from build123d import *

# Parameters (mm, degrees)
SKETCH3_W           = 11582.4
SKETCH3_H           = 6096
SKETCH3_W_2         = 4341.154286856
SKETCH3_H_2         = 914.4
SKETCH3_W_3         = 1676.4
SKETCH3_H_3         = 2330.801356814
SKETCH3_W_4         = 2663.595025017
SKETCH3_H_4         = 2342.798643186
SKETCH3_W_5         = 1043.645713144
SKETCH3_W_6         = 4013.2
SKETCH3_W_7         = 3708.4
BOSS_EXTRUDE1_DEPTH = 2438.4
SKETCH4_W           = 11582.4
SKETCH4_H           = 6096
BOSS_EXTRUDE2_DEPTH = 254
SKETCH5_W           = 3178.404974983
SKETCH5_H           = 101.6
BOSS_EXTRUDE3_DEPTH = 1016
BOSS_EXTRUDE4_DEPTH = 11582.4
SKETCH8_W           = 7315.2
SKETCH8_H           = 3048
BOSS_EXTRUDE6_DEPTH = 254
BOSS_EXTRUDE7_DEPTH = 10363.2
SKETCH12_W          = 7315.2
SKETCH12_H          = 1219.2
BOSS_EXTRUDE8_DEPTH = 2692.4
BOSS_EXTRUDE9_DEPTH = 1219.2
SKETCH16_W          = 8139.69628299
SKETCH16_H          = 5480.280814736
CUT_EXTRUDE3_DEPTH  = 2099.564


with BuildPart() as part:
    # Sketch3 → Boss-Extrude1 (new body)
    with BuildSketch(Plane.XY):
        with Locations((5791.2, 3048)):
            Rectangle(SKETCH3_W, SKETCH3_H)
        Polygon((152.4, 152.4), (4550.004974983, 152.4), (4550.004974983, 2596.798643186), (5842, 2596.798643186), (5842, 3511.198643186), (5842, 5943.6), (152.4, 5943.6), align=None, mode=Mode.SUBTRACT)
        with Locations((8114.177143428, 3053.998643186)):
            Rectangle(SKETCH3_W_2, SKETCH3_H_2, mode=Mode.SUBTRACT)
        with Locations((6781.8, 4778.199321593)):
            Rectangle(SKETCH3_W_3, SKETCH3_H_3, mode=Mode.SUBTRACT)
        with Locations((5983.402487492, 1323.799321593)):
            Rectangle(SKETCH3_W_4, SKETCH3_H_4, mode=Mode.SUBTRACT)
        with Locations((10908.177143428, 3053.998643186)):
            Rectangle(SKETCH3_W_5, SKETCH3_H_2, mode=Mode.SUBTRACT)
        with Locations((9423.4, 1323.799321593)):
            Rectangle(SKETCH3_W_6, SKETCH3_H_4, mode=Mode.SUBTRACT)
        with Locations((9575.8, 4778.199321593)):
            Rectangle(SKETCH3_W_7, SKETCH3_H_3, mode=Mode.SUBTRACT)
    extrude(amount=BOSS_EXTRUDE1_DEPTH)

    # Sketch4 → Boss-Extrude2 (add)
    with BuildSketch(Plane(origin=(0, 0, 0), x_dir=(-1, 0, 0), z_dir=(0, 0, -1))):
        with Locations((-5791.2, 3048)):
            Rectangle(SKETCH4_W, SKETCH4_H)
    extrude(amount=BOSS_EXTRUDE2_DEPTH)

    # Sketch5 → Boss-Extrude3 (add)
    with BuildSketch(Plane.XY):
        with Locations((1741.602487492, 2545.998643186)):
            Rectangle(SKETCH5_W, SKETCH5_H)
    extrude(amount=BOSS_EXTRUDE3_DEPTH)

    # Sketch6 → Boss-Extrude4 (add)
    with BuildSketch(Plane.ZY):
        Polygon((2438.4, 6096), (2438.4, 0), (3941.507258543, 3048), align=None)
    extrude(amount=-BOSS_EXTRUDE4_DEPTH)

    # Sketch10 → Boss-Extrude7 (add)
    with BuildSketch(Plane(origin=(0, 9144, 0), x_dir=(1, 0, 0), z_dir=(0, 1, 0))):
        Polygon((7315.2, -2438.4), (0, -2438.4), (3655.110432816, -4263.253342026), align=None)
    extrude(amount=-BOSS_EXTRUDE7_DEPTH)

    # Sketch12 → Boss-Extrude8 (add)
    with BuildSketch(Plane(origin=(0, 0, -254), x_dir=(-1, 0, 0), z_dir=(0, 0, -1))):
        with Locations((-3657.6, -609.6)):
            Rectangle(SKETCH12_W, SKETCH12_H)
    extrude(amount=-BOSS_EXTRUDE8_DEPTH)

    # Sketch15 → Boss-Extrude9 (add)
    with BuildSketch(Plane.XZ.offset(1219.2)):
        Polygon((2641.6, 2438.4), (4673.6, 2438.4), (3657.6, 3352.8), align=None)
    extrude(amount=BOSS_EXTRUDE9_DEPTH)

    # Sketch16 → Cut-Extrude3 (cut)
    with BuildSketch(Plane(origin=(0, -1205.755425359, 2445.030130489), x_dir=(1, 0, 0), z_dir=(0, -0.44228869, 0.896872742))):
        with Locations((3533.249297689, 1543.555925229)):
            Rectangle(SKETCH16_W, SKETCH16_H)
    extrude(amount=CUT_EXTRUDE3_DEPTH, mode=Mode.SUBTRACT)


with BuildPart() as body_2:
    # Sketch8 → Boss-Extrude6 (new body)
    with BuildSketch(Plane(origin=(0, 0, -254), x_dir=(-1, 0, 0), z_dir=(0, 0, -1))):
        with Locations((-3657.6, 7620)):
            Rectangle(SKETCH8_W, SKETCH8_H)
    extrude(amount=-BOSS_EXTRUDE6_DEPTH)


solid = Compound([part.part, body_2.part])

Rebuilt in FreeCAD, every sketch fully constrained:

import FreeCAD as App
import Part
import Sketcher

V = App.Vector
Q = App.Units.Quantity

doc = App.newDocument("Part")
body = doc.addObject("PartDesign::Body", "Body")

sketch1 = doc.addObject("Sketcher::SketchObject", "Sketch")
body.addObject(sketch1)
sketch1.AttachmentSupport = (doc.XY_Plane, [""])
sketch1.MapMode = "FlatFace"
sketch1.addGeometry(Part.LineSegment(V(0, 6096, 0), V(0, 0, 0)), False)
sketch1.addGeometry(Part.LineSegment(V(0, 0, 0), V(11582.4, 0, 0)), False)
sketch1.addGeometry(Part.LineSegment(V(11582.4, 0, 0), V(11582.4, 6096, 0)), False)
sketch1.addGeometry(Part.LineSegment(V(11582.4, 6096, 0), V(0, 6096, 0)), False)
sketch1.addGeometry(Part.LineSegment(V(7315.2, 152.4, 0), V(4651.604975, 152.4, 0)), False)
sketch1.addGeometry(Part.LineSegment(V(4651.604975, 152.4, 0), V(4651.604975, 2495.198643, 0)), False)
sketch1.addGeometry(Part.LineSegment(V(4651.604975, 2495.198643, 0), V(7315.2, 2495.198643, 0)), False)
sketch1.addGeometry(Part.LineSegment(V(7315.2, 2495.198643, 0), V(7315.2, 152.4, 0)), False)
sketch1.addGeometry(Part.LineSegment(V(11430, 152.4, 0), V(7416.8, 152.4, 0)), False)
sketch1.addGeometry(Part.LineSegment(V(7416.8, 152.4, 0), V(7416.8, 2495.198643, 0)), False)
sketch1.addGeometry(Part.LineSegment(V(7416.8, 2495.198643, 0), V(11430, 2495.198643, 0)), False)
sketch1.addGeometry(Part.LineSegment(V(11430, 2495.198643, 0), V(11430, 152.4, 0)), False)
sketch1.addGeometry(Part.LineSegment(V(4550.004975, 152.4, 0), V(152.4, 152.4, 0)), False)
sketch1.addGeometry(Part.LineSegment(V(152.4, 152.4, 0), V(152.4, 5943.6, 0)), False)
sketch1.addGeometry(Part.LineSegment(V(152.4, 5943.6, 0), V(5842, 5943.6, 0)), False)
sketch1.addGeometry(Part.LineSegment(V(5842, 5943.6, 0), V(5842, 2596.798643, 0)), False)
sketch1.addGeometry(Part.LineSegment(V(5842, 2596.798643, 0), V(4550.004975, 2596.798643, 0)), False)
sketch1.addGeometry(Part.LineSegment(V(4550.004975, 2596.798643, 0), V(4550.004975, 152.4, 0)), False)
sketch1.addGeometry(Part.LineSegment(V(10284.754287, 2596.798643, 0), V(5943.6, 2596.798643, 0)), False)
sketch1.addGeometry(Part.LineSegment(V(5943.6, 2596.798643, 0), V(5943.6, 3511.198643, 0)), False)
sketch1.addGeometry(Part.LineSegment(V(5943.6, 3511.198643, 0), V(10284.754287, 3511.198643, 0)), False)
sketch1.addGeometry(Part.LineSegment(V(10284.754287, 3511.198643, 0), V(10284.754287, 2596.798643, 0)), False)
sketch1.addGeometry(Part.LineSegment(V(11430, 2596.798643, 0), V(10386.354287, 2596.798643, 0)), False)
sketch1.addGeometry(Part.LineSegment(V(10386.354287, 2596.798643, 0), V(10386.354287, 3511.198643, 0)), False)
sketch1.addGeometry(Part.LineSegment(V(10386.354287, 3511.198643, 0), V(11430, 3511.198643, 0)), False)
sketch1.addGeometry(Part.LineSegment(V(11430, 3511.198643, 0), V(11430, 2596.798643, 0)), False)
sketch1.addGeometry(Part.LineSegment(V(7620, 3612.798643, 0), V(5943.6, 3612.798643, 0)), False)
sketch1.addGeometry(Part.LineSegment(V(5943.6, 3612.798643, 0), V(5943.6, 5943.6, 0)), False)
sketch1.addGeometry(Part.LineSegment(V(5943.6, 5943.6, 0), V(7620, 5943.6, 0)), False)
sketch1.addGeometry(Part.LineSegment(V(7620, 5943.6, 0), V(7620, 3612.798643, 0)), False)
sketch1.addGeometry(Part.LineSegment(V(11430, 3612.798643, 0), V(7721.6, 3612.798643, 0)), False)
sketch1.addGeometry(Part.LineSegment(V(7721.6, 3612.798643, 0), V(7721.6, 5943.6, 0)), False)
sketch1.addGeometry(Part.LineSegment(V(7721.6, 5943.6, 0), V(11430, 5943.6, 0)), False)
sketch1.addGeometry(Part.LineSegment(V(11430, 5943.6, 0), V(11430, 3612.798643, 0)), False)
sketch1.addConstraint(Sketcher.Constraint("Coincident", 0, 2, 1, 1))
sketch1.addConstraint(Sketcher.Constraint("Coincident", 1, 2, 2, 1))
sketch1.addConstraint(Sketcher.Constraint("Coincident", 2, 2, 3, 1))
sketch1.addConstraint(Sketcher.Constraint("Coincident", 3, 2, 0, 1))
sketch1.addConstraint(Sketcher.Constraint("Coincident", 4, 2, 5, 1))
sketch1.addConstraint(Sketcher.Constraint("Coincident", 5, 2, 6, 1))
sketch1.addConstraint(Sketcher.Constraint("Coincident", 6, 2, 7, 1))
sketch1.addConstraint(Sketcher.Constraint("Coincident", 7, 2, 4, 1))
sketch1.addConstraint(Sketcher.Constraint("Coincident", 8, 2, 9, 1))
sketch1.addConstraint(Sketcher.Constraint("Coincident", 9, 2, 10, 1))
sketch1.addConstraint(Sketcher.Constraint("Coincident", 10, 2, 11, 1))
sketch1.addConstraint(Sketcher.Constraint("Coincident", 11, 2, 8, 1))
sketch1.addConstraint(Sketcher.Constraint("Coincident", 12, 2, 13, 1))
sketch1.addConstraint(Sketcher.Constraint("Coincident", 13, 2, 14, 1))
sketch1.addConstraint(Sketcher.Constraint("Coincident", 14, 2, 15, 1))
sketch1.addConstraint(Sketcher.Constraint("Coincident", 15, 2, 16, 1))
sketch1.addConstraint(Sketcher.Constraint("Coincident", 16, 2, 17, 1))
sketch1.addConstraint(Sketcher.Constraint("Coincident", 17, 2, 12, 1))
sketch1.addConstraint(Sketcher.Constraint("Coincident", 18, 2, 19, 1))
sketch1.addConstraint(Sketcher.Constraint("Coincident", 19, 2, 20, 1))
sketch1.addConstraint(Sketcher.Constraint("Coincident", 20, 2, 21, 1))
sketch1.addConstraint(Sketcher.Constraint("Coincident", 21, 2, 18, 1))
sketch1.addConstraint(Sketcher.Constraint("Coincident", 22, 2, 23, 1))
sketch1.addConstraint(Sketcher.Constraint("Coincident", 23, 2, 24, 1))
sketch1.addConstraint(Sketcher.Constraint("Coincident", 24, 2, 25, 1))
sketch1.addConstraint(Sketcher.Constraint("Coincident", 25, 2, 22, 1))
sketch1.addConstraint(Sketcher.Constraint("Coincident", 26, 2, 27, 1))
sketch1.addConstraint(Sketcher.Constraint("Coincident", 27, 2, 28, 1))
sketch1.addConstraint(Sketcher.Constraint("Coincident", 28, 2, 29, 1))
sketch1.addConstraint(Sketcher.Constraint("Coincident", 29, 2, 26, 1))
sketch1.addConstraint(Sketcher.Constraint("Coincident", 30, 2, 31, 1))
sketch1.addConstraint(Sketcher.Constraint("Coincident", 31, 2, 32, 1))
sketch1.addConstraint(Sketcher.Constraint("Coincident", 32, 2, 33, 1))
sketch1.addConstraint(Sketcher.Constraint("Coincident", 33, 2, 30, 1))
sketch1.addConstraint(Sketcher.Constraint("Vertical", 0))
sketch1.addConstraint(Sketcher.Constraint("Horizontal", 1))
sketch1.addConstraint(Sketcher.Constraint("Vertical", 2))
sketch1.addConstraint(Sketcher.Constraint("Horizontal", 3))
sketch1.addConstraint(Sketcher.Constraint("Horizontal", 4))
sketch1.addConstraint(Sketcher.Constraint("Vertical", 5))
sketch1.addConstraint(Sketcher.Constraint("Horizontal", 6))
sketch1.addConstraint(Sketcher.Constraint("Vertical", 7))
sketch1.addConstraint(Sketcher.Constraint("Horizontal", 8))
sketch1.addConstraint(Sketcher.Constraint("Vertical", 9))
sketch1.addConstraint(Sketcher.Constraint("Horizontal", 10))
sketch1.addConstraint(Sketcher.Constraint("Vertical", 11))
sketch1.addConstraint(Sketcher.Constraint("Horizontal", 12))
sketch1.addConstraint(Sketcher.Constraint("Vertical", 13))
sketch1.addConstraint(Sketcher.Constraint("Horizontal", 14))
sketch1.addConstraint(Sketcher.Constraint("Vertical", 15))
sketch1.addConstraint(Sketcher.Constraint("Horizontal", 16))
sketch1.addConstraint(Sketcher.Constraint("Vertical", 17))
sketch1.addConstraint(Sketcher.Constraint("Horizontal", 18))
sketch1.addConstraint(Sketcher.Constraint("Vertical", 19))
sketch1.addConstraint(Sketcher.Constraint("Horizontal", 20))
sketch1.addConstraint(Sketcher.Constraint("Vertical", 21))
sketch1.addConstraint(Sketcher.Constraint("Horizontal", 22))
sketch1.addConstraint(Sketcher.Constraint("Vertical", 23))
sketch1.addConstraint(Sketcher.Constraint("Horizontal", 24))
sketch1.addConstraint(Sketcher.Constraint("Vertical", 25))
sketch1.addConstraint(Sketcher.Constraint("Horizontal", 26))
sketch1.addConstraint(Sketcher.Constraint("Vertical", 27))
sketch1.addConstraint(Sketcher.Constraint("Horizontal", 28))
sketch1.addConstraint(Sketcher.Constraint("Vertical", 29))
sketch1.addConstraint(Sketcher.Constraint("Horizontal", 30))
sketch1.addConstraint(Sketcher.Constraint("Vertical", 31))
sketch1.addConstraint(Sketcher.Constraint("Horizontal", 32))
sketch1.addConstraint(Sketcher.Constraint("Vertical", 33))
sketch1.addConstraint(Sketcher.Constraint("Coincident", 0, 2, -1, 1))
sketch1.addConstraint(Sketcher.Constraint("Horizontal", 7, 2, 8, 2))
sketch1.addConstraint(Sketcher.Constraint("Horizontal", 6, 2, 9, 2))
sketch1.addConstraint(Sketcher.Constraint("Horizontal", 11, 2, 12, 2))
sketch1.addConstraint(Sketcher.Constraint("Horizontal", 16, 2, 18, 2))
sketch1.addConstraint(Sketcher.Constraint("Horizontal", 21, 2, 22, 2))
sketch1.addConstraint(Sketcher.Constraint("Horizontal", 20, 2, 23, 2))
sketch1.addConstraint(Sketcher.Constraint("Horizontal", 14, 2, 27, 2))
sketch1.addConstraint(Sketcher.Constraint("Horizontal", 29, 2, 30, 2))
sketch1.addConstraint(Sketcher.Constraint("Horizontal", 28, 2, 31, 2))
sketch1.addConstraint(Sketcher.Constraint("Vertical", 11, 2, 24, 2))
sketch1.addConstraint(Sketcher.Constraint("Vertical", 19, 2, 26, 2))
sketch1.addConstraint(Sketcher.Constraint("Vertical", 25, 2, 32, 2))
sketch1.addConstraint(Sketcher.Constraint("DistanceX", 1, 1, 1, 2, Q("456 in")))
sketch1.addConstraint(Sketcher.Constraint("DistanceX", 8, 2, 8, 1, Q("158 in")))
sketch1.addConstraint(Sketcher.Constraint("DistanceX", 14, 1, 14, 2, Q("224 in")))
sketch1.addConstraint(Sketcher.Constraint("DistanceX", 26, 2, 26, 1, Q("66 in")))
sketch1.addConstraint(Sketcher.Constraint("DistanceX", 30, 2, 30, 1, Q("146 in")))
sketch1.addConstraint(Sketcher.Constraint("DistanceY", 0, 2, 0, 1, Q("240 in")))
sketch1.addConstraint(Sketcher.Constraint("DistanceY", 13, 1, 13, 2, Q("228 in")))
sketch1.addConstraint(Sketcher.Constraint("DistanceY", 19, 1, 19, 2, Q("36 in")))
sketch1.addConstraint(Sketcher.Constraint("DistanceY", -1, 1, 4, 2, Q("6 in")))
sketch1.addConstraint(Sketcher.Constraint("DistanceX", -1, 1, 6, 2, Q("288 in")))
sketch1.addConstraint(Sketcher.Constraint("DistanceX", -1, 1, 8, 2, Q("292 in")))
sketch1.addConstraint(Sketcher.Constraint("DistanceX", -1, 1, 12, 2, Q("6 in")))
sketch1.addConstraint(Sketcher.Constraint("DistanceX", -1, 1, 18, 2, Q("234 in")))
sketch1.addConstraint(Sketcher.Constraint("DistanceY", 5, 2, 15, 2, Q("4 in")))
sketch1.addConstraint(Sketcher.Constraint("DistanceX", 16, 2, 5, 2, Q("4 in")))
sketch1.addConstraint(Sketcher.Constraint("DistanceX", 21, 2, 22, 2, Q("4 in")))
sketch1.addConstraint(Sketcher.Constraint("DistanceY", 19, 2, 26, 2, Q("4 in")))
sketch1.addConstraint(Sketcher.Constraint("DistanceX", 4, 2, 4, 1, 2663.595025))
sketch1.addConstraint(Sketcher.Constraint("DistanceX", 18, 2, 18, 1, 4341.154287))
sketch1.addConstraint(Sketcher.Constraint("DistanceY", 5, 1, 5, 2, 2342.798643))
pad1 = doc.addObject("PartDesign::Pad", "Pad")
body.addObject(pad1)
pad1.Profile = sketch1
pad1.Length = Q("96 in")

sketch2 = doc.addObject("Sketcher::SketchObject", "Sketch001")
body.addObject(sketch2)
sketch2.AttachmentSupport = (doc.XY_Plane, [""])
sketch2.MapMode = "FlatFace"
sketch2.addGeometry(Part.LineSegment(V(11582.4, 6096, 0), V(11582.4, 0, 0)), False)
sketch2.addGeometry(Part.LineSegment(V(11582.4, 0, 0), V(0, 0, 0)), False)
sketch2.addGeometry(Part.LineSegment(V(0, 0, 0), V(0, 6096, 0)), False)
sketch2.addGeometry(Part.LineSegment(V(0, 6096, 0), V(11582.4, 6096, 0)), False)
sketch2.addConstraint(Sketcher.Constraint("Coincident", 0, 2, 1, 1))
sketch2.addConstraint(Sketcher.Constraint("Coincident", 1, 2, 2, 1))
sketch2.addConstraint(Sketcher.Constraint("Coincident", 2, 2, 3, 1))
sketch2.addConstraint(Sketcher.Constraint("Coincident", 3, 2, 0, 1))
sketch2.addConstraint(Sketcher.Constraint("Vertical", 0))
sketch2.addConstraint(Sketcher.Constraint("Horizontal", 1))
sketch2.addConstraint(Sketcher.Constraint("Vertical", 2))
sketch2.addConstraint(Sketcher.Constraint("Horizontal", 3))
sketch2.addConstraint(Sketcher.Constraint("Coincident", 1, 2, -1, 1))
sketch2.addConstraint(Sketcher.Constraint("DistanceX", 1, 2, 1, 1, Q("456 in")))
sketch2.addConstraint(Sketcher.Constraint("DistanceY", 0, 2, 0, 1, Q("240 in")))
pad2 = doc.addObject("PartDesign::Pad", "Pad001")
body.addObject(pad2)
pad2.Profile = sketch2
pad2.Length = Q("10 in")
pad2.Reversed = True

sketch3 = doc.addObject("Sketcher::SketchObject", "Sketch002")
body.addObject(sketch3)
sketch3.AttachmentSupport = (doc.XY_Plane, [""])
sketch3.MapMode = "FlatFace"
sketch3.addGeometry(Part.LineSegment(V(152.4, 2596.798643, 0), V(152.4, 2495.198643, 0)), False)
sketch3.addGeometry(Part.LineSegment(V(152.4, 2495.198643, 0), V(3330.804975, 2495.198643, 0)), False)
sketch3.addGeometry(Part.LineSegment(V(3330.804975, 2495.198643, 0), V(3330.804975, 2596.798643, 0)), False)
sketch3.addGeometry(Part.LineSegment(V(3330.804975, 2596.798643, 0), V(152.4, 2596.798643, 0)), False)
sketch3.addConstraint(Sketcher.Constraint("Coincident", 0, 2, 1, 1))
sketch3.addConstraint(Sketcher.Constraint("Coincident", 1, 2, 2, 1))
sketch3.addConstraint(Sketcher.Constraint("Coincident", 2, 2, 3, 1))
sketch3.addConstraint(Sketcher.Constraint("Coincident", 3, 2, 0, 1))
sketch3.addConstraint(Sketcher.Constraint("Vertical", 0))
sketch3.addConstraint(Sketcher.Constraint("Horizontal", 1))
sketch3.addConstraint(Sketcher.Constraint("Vertical", 2))
sketch3.addConstraint(Sketcher.Constraint("Horizontal", 3))
sketch3.addConstraint(Sketcher.Constraint("DistanceY", 0, 2, 0, 1, Q("4 in")))
sketch3.addConstraint(Sketcher.Constraint("DistanceX", -1, 1, 0, 2, Q("6 in")))
sketch3.addConstraint(Sketcher.Constraint("DistanceX", 1, 1, 1, 2, 3178.404975))
sketch3.addConstraint(Sketcher.Constraint("DistanceY", -1, 1, 0, 2, 2495.198643))
pad3 = doc.addObject("PartDesign::Pad", "Pad002")
body.addObject(pad3)
pad3.Profile = sketch3
pad3.Length = Q("40 in")

sketch4 = doc.addObject("Sketcher::SketchObject", "Sketch003")
body.addObject(sketch4)
sketch4.AttachmentSupport = (doc.YZ_Plane, [""])
sketch4.MapMode = "FlatFace"
sketch4.addGeometry(Part.LineSegment(V(6096, 2438.4, 0), V(0, 2438.4, 0)), False)
sketch4.addGeometry(Part.LineSegment(V(0, 2438.4, 0), V(3048, 3941.507259, 0)), False)
sketch4.addGeometry(Part.LineSegment(V(3048, 3941.507259, 0), V(6096, 2438.4, 0)), False)
sketch4.addConstraint(Sketcher.Constraint("Coincident", 0, 2, 1, 1))
sketch4.addConstraint(Sketcher.Constraint("Coincident", 1, 2, 2, 1))
sketch4.addConstraint(Sketcher.Constraint("Coincident", 2, 2, 0, 1))
sketch4.addConstraint(Sketcher.Constraint("Horizontal", 0))
sketch4.addConstraint(Sketcher.Constraint("PointOnObject", 0, 2, -2))
sketch4.addConstraint(Sketcher.Constraint("Equal", 1, 2))
sketch4.addConstraint(Sketcher.Constraint("DistanceX", 0, 2, 0, 1, Q("240 in")))
sketch4.addConstraint(Sketcher.Constraint("DistanceY", -1, 1, 0, 2, Q("96 in")))
sketch4.addConstraint(Sketcher.Constraint("Angle", 1, Q("26.25 deg")))
pad4 = doc.addObject("PartDesign::Pad", "Pad003")
body.addObject(pad4)
pad4.Profile = sketch4
pad4.Length = Q("456 in")

sketch5 = doc.addObject("Sketcher::SketchObject", "Sketch004")
body.addObject(sketch5)
sketch5.AttachmentSupport = (doc.XZ_Plane, [""])
sketch5.MapMode = "FlatFace"
sketch5.AttachmentOffset = App.Placement(V(0, 0, -360 * 25.4), App.Rotation())
sketch5.addGeometry(Part.LineSegment(V(7315.2, 2438.4, 0), V(0, 2438.4, 0)), False)
sketch5.addGeometry(Part.LineSegment(V(0, 2438.4, 0), V(3655.110433, 4263.253342, 0)), False)
sketch5.addGeometry(Part.LineSegment(V(3655.110433, 4263.253342, 0), V(7315.2, 2438.4, 0)), False)
sketch5.addConstraint(Sketcher.Constraint("Coincident", 0, 2, 1, 1))
sketch5.addConstraint(Sketcher.Constraint("Coincident", 1, 2, 2, 1))
sketch5.addConstraint(Sketcher.Constraint("Coincident", 2, 2, 0, 1))
sketch5.addConstraint(Sketcher.Constraint("Horizontal", 0))
sketch5.addConstraint(Sketcher.Constraint("PointOnObject", 0, 2, -2))
sketch5.addConstraint(Sketcher.Constraint("DistanceX", 0, 2, 0, 1, Q("288 in")))
sketch5.addConstraint(Sketcher.Constraint("DistanceY", -1, 1, 0, 2, Q("96 in")))
sketch5.addConstraint(Sketcher.Constraint("Angle", 2, Q("-26.5 deg")))
sketch5.addConstraint(Sketcher.Constraint("Distance", 2, 4089.785491))
pad5 = doc.addObject("PartDesign::Pad", "Pad004")
body.addObject(pad5)
pad5.Profile = sketch5
pad5.Length = Q("408 in")

sketch6 = doc.addObject("Sketcher::SketchObject", "Sketch005")
body.addObject(sketch6)
sketch6.AttachmentSupport = (doc.XY_Plane, [""])
sketch6.MapMode = "FlatFace"
sketch6.AttachmentOffset = App.Placement(V(0, 0, -10 * 25.4), App.Rotation())
sketch6.addGeometry(Part.LineSegment(V(7315.2, 0, 0), V(7315.2, -1219.2, 0)), False)
sketch6.addGeometry(Part.LineSegment(V(7315.2, -1219.2, 0), V(0, -1219.2, 0)), False)
sketch6.addGeometry(Part.LineSegment(V(0, -1219.2, 0), V(0, 0, 0)), False)
sketch6.addGeometry(Part.LineSegment(V(0, 0, 0), V(7315.2, 0, 0)), False)
sketch6.addConstraint(Sketcher.Constraint("Coincident", 0, 2, 1, 1))
sketch6.addConstraint(Sketcher.Constraint("Coincident", 1, 2, 2, 1))
sketch6.addConstraint(Sketcher.Constraint("Coincident", 2, 2, 3, 1))
sketch6.addConstraint(Sketcher.Constraint("Coincident", 3, 2, 0, 1))
sketch6.addConstraint(Sketcher.Constraint("Vertical", 0))
sketch6.addConstraint(Sketcher.Constraint("Horizontal", 1))
sketch6.addConstraint(Sketcher.Constraint("Vertical", 2))
sketch6.addConstraint(Sketcher.Constraint("Horizontal", 3))
sketch6.addConstraint(Sketcher.Constraint("Coincident", 2, 2, -1, 1))
sketch6.addConstraint(Sketcher.Constraint("DistanceX", 1, 2, 1, 1, Q("288 in")))
sketch6.addConstraint(Sketcher.Constraint("DistanceY", 0, 2, 0, 1, Q("48 in")))
pad6 = doc.addObject("PartDesign::Pad", "Pad005")
body.addObject(pad6)
pad6.Profile = sketch6
pad6.Length = Q("106 in")

sketch7 = doc.addObject("Sketcher::SketchObject", "Sketch006")
body.addObject(sketch7)
sketch7.AttachmentSupport = (doc.XZ_Plane, [""])
sketch7.MapMode = "FlatFace"
sketch7.AttachmentOffset = App.Placement(V(0, 0, 48 * 25.4), App.Rotation())
sketch7.addGeometry(Part.LineSegment(V(2641.6, 2438.4, 0), V(4673.6, 2438.4, 0)), False)
sketch7.addGeometry(Part.LineSegment(V(4673.6, 2438.4, 0), V(3657.6, 3352.8, 0)), False)
sketch7.addGeometry(Part.LineSegment(V(3657.6, 3352.8, 0), V(2641.6, 2438.4, 0)), False)
sketch7.addConstraint(Sketcher.Constraint("Coincident", 0, 2, 1, 1))
sketch7.addConstraint(Sketcher.Constraint("Coincident", 1, 2, 2, 1))
sketch7.addConstraint(Sketcher.Constraint("Coincident", 2, 2, 0, 1))
sketch7.addConstraint(Sketcher.Constraint("Horizontal", 0))
sketch7.addConstraint(Sketcher.Constraint("Equal", 1, 2))
sketch7.addConstraint(Sketcher.Constraint("DistanceX", 0, 1, 0, 2, Q("80 in")))
sketch7.addConstraint(Sketcher.Constraint("DistanceX", -1, 1, 0, 2, Q("184 in")))
sketch7.addConstraint(Sketcher.Constraint("DistanceY", -1, 1, 0, 2, Q("96 in")))
sketch7.addConstraint(Sketcher.Constraint("DistanceY", -1, 1, 1, 2, Q("132 in")))
pad7 = doc.addObject("PartDesign::Pad", "Pad006")
body.addObject(pad7)
pad7.Profile = sketch7
pad7.Length = Q("48 in")

sketch8 = doc.addObject("Sketcher::SketchObject", "Sketch007")
body.addObject(sketch8)
sketch8.Placement = App.Placement(V(0, -1205.755425, 2445.03013), App.Rotation(V(1, 0, 0), V(0, 0.896872742, 0.44228869), V(0, -0.44228869, 0.896872742), "ZXY"))
sketch8.addGeometry(Part.LineSegment(V(-536.598844, 4283.696335, 0), V(-536.598844, -1196.584483, 0)), False)
sketch8.addGeometry(Part.LineSegment(V(-536.598844, -1196.584483, 0), V(7603.097439, -1196.584483, 0)), False)
sketch8.addGeometry(Part.LineSegment(V(7603.097439, -1196.584483, 0), V(7603.097439, 4283.696335, 0)), False)
sketch8.addGeometry(Part.LineSegment(V(7603.097439, 4283.696335, 0), V(-536.598844, 4283.696335, 0)), False)
sketch8.addConstraint(Sketcher.Constraint("Coincident", 0, 2, 1, 1))
sketch8.addConstraint(Sketcher.Constraint("Coincident", 1, 2, 2, 1))
sketch8.addConstraint(Sketcher.Constraint("Coincident", 2, 2, 3, 1))
sketch8.addConstraint(Sketcher.Constraint("Coincident", 3, 2, 0, 1))
sketch8.addConstraint(Sketcher.Constraint("Vertical", 0))
sketch8.addConstraint(Sketcher.Constraint("Horizontal", 1))
sketch8.addConstraint(Sketcher.Constraint("Vertical", 2))
sketch8.addConstraint(Sketcher.Constraint("Horizontal", 3))
sketch8.addConstraint(Sketcher.Constraint("DistanceY", 0, 2, 0, 1, 5480.280818))
sketch8.addConstraint(Sketcher.Constraint("DistanceX", 1, 1, 1, 2, 8139.696283))
sketch8.addConstraint(Sketcher.Constraint("DistanceX", -1, 1, 1, 2, 7603.097439))
sketch8.addConstraint(Sketcher.Constraint("DistanceY", 0, 2, -1, 1, 1196.584483))
pocket1 = doc.addObject("PartDesign::Pocket", "Pocket")
body.addObject(pocket1)
pocket1.Profile = sketch8
pocket1.Length = Q("82.66 in")
pocket1.Reversed = True
body2 = doc.addObject("PartDesign::Body", "Body001")

sketch9 = doc.addObject("Sketcher::SketchObject", "Sketch008")
body2.addObject(sketch9)
sketch9.AttachmentSupport = (doc.getObject("XY_Plane001"), [""])
sketch9.MapMode = "FlatFace"
sketch9.AttachmentOffset = App.Placement(V(0, 0, -10 * 25.4), App.Rotation())
sketch9.addGeometry(Part.LineSegment(V(7315.2, 9144, 0), V(7315.2, 6096, 0)), False)
sketch9.addGeometry(Part.LineSegment(V(7315.2, 6096, 0), V(0, 6096, 0)), False)
sketch9.addGeometry(Part.LineSegment(V(0, 6096, 0), V(0, 9144, 0)), False)
sketch9.addGeometry(Part.LineSegment(V(0, 9144, 0), V(7315.2, 9144, 0)), False)
sketch9.addConstraint(Sketcher.Constraint("Coincident", 0, 2, 1, 1))
sketch9.addConstraint(Sketcher.Constraint("Coincident", 1, 2, 2, 1))
sketch9.addConstraint(Sketcher.Constraint("Coincident", 2, 2, 3, 1))
sketch9.addConstraint(Sketcher.Constraint("Coincident", 3, 2, 0, 1))
sketch9.addConstraint(Sketcher.Constraint("Vertical", 0))
sketch9.addConstraint(Sketcher.Constraint("Horizontal", 1))
sketch9.addConstraint(Sketcher.Constraint("Vertical", 2))
sketch9.addConstraint(Sketcher.Constraint("Horizontal", 3))
sketch9.addConstraint(Sketcher.Constraint("PointOnObject", 1, 2, -2))
sketch9.addConstraint(Sketcher.Constraint("DistanceX", 1, 2, 1, 1, Q("288 in")))
sketch9.addConstraint(Sketcher.Constraint("DistanceY", 0, 2, 0, 1, Q("120 in")))
sketch9.addConstraint(Sketcher.Constraint("DistanceY", -1, 1, 0, 2, Q("240 in")))
pad8 = doc.addObject("PartDesign::Pad", "Pad007")
body2.addObject(pad8)
pad8.Profile = sketch9
pad8.Length = Q("10 in")

doc.recompute()
